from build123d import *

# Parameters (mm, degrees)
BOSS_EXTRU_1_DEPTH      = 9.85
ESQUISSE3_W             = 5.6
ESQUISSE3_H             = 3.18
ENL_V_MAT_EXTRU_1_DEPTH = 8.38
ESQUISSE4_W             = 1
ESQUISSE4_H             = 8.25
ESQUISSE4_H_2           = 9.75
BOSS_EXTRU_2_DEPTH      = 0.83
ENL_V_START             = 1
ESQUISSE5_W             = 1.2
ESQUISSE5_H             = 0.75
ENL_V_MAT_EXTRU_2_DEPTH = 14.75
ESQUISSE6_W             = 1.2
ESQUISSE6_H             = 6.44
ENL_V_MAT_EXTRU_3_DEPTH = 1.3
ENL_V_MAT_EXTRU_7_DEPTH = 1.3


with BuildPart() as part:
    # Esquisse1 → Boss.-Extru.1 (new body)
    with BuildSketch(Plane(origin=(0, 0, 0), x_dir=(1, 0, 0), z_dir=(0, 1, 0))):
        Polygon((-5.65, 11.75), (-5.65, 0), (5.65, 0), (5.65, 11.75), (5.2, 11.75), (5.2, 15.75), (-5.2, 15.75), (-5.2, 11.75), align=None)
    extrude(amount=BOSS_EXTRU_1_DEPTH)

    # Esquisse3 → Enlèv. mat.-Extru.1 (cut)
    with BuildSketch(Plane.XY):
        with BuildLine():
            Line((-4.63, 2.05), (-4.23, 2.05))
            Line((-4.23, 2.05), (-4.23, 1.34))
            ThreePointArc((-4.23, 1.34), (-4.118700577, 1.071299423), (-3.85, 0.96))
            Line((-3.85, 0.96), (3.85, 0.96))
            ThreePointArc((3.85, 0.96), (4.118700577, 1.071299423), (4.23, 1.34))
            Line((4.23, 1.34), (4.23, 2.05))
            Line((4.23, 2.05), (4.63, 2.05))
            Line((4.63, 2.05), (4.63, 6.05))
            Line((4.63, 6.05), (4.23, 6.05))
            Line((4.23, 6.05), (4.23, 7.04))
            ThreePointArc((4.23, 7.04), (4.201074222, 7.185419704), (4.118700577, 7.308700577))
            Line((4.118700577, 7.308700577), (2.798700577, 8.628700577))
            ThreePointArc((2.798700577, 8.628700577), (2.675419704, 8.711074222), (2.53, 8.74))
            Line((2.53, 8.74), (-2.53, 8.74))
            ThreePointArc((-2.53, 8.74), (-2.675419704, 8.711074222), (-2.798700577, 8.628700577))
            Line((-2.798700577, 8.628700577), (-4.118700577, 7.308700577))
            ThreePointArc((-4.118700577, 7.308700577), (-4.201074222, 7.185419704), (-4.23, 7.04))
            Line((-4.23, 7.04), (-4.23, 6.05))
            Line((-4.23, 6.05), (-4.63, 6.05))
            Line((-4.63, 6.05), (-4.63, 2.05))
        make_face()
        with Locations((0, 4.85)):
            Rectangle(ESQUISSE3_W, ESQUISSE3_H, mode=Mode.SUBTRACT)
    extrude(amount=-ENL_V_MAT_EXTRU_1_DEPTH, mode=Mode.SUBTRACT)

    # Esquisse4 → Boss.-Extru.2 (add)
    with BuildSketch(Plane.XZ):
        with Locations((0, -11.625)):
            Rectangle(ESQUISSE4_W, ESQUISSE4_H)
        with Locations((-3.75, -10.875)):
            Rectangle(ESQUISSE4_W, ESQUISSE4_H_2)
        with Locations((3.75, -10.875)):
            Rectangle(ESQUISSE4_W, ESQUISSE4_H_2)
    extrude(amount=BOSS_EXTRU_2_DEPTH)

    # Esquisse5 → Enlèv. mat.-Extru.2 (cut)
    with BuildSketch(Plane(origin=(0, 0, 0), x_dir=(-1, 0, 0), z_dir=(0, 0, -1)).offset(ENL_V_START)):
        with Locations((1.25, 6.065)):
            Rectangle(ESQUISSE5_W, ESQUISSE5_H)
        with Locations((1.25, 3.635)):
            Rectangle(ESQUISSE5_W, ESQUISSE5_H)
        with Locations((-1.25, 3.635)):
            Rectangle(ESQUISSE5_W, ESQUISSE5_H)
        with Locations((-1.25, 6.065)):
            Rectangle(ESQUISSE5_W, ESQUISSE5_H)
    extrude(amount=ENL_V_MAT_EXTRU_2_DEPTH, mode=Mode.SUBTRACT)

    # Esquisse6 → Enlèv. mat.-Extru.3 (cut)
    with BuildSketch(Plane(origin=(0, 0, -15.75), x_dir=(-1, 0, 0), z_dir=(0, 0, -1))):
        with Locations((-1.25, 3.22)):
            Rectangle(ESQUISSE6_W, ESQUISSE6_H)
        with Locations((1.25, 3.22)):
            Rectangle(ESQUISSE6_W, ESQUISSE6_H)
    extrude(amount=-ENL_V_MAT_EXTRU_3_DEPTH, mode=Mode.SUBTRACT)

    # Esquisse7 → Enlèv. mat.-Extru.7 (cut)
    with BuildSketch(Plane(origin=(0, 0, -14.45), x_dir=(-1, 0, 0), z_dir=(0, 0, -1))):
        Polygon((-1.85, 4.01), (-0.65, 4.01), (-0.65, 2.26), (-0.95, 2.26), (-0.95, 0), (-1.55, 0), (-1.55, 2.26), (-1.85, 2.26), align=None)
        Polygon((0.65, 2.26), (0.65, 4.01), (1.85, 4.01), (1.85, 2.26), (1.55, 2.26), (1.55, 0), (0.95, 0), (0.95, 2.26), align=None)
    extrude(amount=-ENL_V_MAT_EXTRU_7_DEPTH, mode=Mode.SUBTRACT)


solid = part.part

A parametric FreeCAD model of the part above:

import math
import FreeCAD as App
import Part
import Sketcher
Q = App.Units.Quantity

doc = App.newDocument("Part")
body = doc.addObject("PartDesign::Body", "Body")

sketch1 = body.newObject("Sketcher::SketchObject", "Sketch")
sketch1.AttachmentSupport = (doc.getObject("XZ_Plane"), [""])
sketch1.MapMode = "FlatFace"
sketch1.addGeometry(Part.LineSegment(App.Vector(-5.65, -11.75, 0), App.Vector(-5.65, 0, 0)), False)
sketch1.addGeometry(Part.LineSegment(App.Vector(-5.65, 0, 0), App.Vector(5.65, 0, 0)), False)
sketch1.addGeometry(Part.LineSegment(App.Vector(5.65, 0, 0), App.Vector(5.65, -11.75, 0)), False)
sketch1.addGeometry(Part.LineSegment(App.Vector(5.65, -11.75, 0), App.Vector(5.2, -11.75, 0)), False)
sketch1.addGeometry(Part.LineSegment(App.Vector(5.2, -11.75, 0), App.Vector(5.2, -15.75, 0)), False)
sketch1.addGeometry(Part.LineSegment(App.Vector(5.2, -15.75, 0), App.Vector(-5.2, -15.75, 0)), False)
sketch1.addGeometry(Part.LineSegment(App.Vector(-5.2, -15.75, 0), App.Vector(-5.2, -11.75, 0)), False)
sketch1.addGeometry(Part.LineSegment(App.Vector(-5.2, -11.75, 0), App.Vector(-5.65, -11.75, 0)), False)
sketch1.addConstraint(Sketcher.Constraint("Coincident", 0, 2, 1, 1))
sketch1.addConstraint(Sketcher.Constraint("Coincident", 1, 2, 2, 1))
sketch1.addConstraint(Sketcher.Constraint("Coincident", 2, 2, 3, 1))
sketch1.addConstraint(Sketcher.Constraint("Coincident", 3, 2, 4, 1))
sketch1.addConstraint(Sketcher.Constraint("Coincident", 4, 2, 5, 1))
sketch1.addConstraint(Sketcher.Constraint("Coincident", 5, 2, 6, 1))
sketch1.addConstraint(Sketcher.Constraint("Coincident", 6, 2, 7, 1))
sketch1.addConstraint(Sketcher.Constraint("Coincident", 7, 2, 0, 1))
sketch1.addConstraint(Sketcher.Constraint("Vertical", 0))
sketch1.addConstraint(Sketcher.Constraint("Horizontal", 1))
sketch1.addConstraint(Sketcher.Constraint("Vertical", 2))
sketch1.addConstraint(Sketcher.Constraint("Horizontal", 3))
sketch1.addConstraint(Sketcher.Constraint("Vertical", 4))
sketch1.addConstraint(Sketcher.Constraint("Horizontal", 5))
sketch1.addConstraint(Sketcher.Constraint("Vertical", 6))
sketch1.addConstraint(Sketcher.Constraint("Horizontal", 7))
sketch1.addConstraint(Sketcher.Constraint("Symmetric", 0, 2, 1, 2, -1, 1))
sketch1.addConstraint(Sketcher.Constraint("Symmetric", 3, 2, 6, 2, -2))
sketch1.addConstraint(Sketcher.Constraint("DistanceY", 4, 2, 4, 1, Q("4 mm")))
sketch1.addConstraint(Sketcher.Constraint("DistanceX", 1, 1, 1, 2, Q("11.3 mm")))
sketch1.addConstraint(Sketcher.Constraint("DistanceX", 5, 2, 5, 1, Q("10.4 mm")))
sketch1.addConstraint(Sketcher.Constraint("DistanceY", 0, 1, 0, 2, Q("11.75 mm")))
pad1 = body.newObject("PartDesign::Pad", "Pad")
pad1.Profile = sketch1
pad1.Length = 9.85
pad1.Reversed = True

sketch2 = body.newObject("Sketcher::SketchObject", "Sketch001")
sketch2.AttachmentSupport = (doc.getObject("XY_Plane"), [""])
sketch2.MapMode = "FlatFace"
sketch2.addGeometry(Part.LineSegment(App.Vector(-4.63, 2.05, 0), App.Vector(-4.23, 2.05, 0)), False)
sketch2.addGeometry(Part.LineSegment(App.Vector(-4.23, 2.05, 0), App.Vector(-4.23, 1.34, 0)), False)
sketch2.addGeometry(Part.ArcOfCircle(Part.Circle(App.Vector(-3.85, 1.34, 0), App.Vector(0, 0, 1), 0.38), math.radians(180), math.radians(270)), False)
sketch2.addGeometry(Part.LineSegment(App.Vector(-3.85, 0.96, 0), App.Vector(3.85, 0.96, 0)), False)
sketch2.addGeometry(Part.ArcOfCircle(Part.Circle(App.Vector(3.85, 1.34, 0), App.Vector(0, 0, 1), 0.38), math.radians(-90), math.radians(0)), False)
sketch2.addGeometry(Part.LineSegment(App.Vector(4.23, 1.34, 0), App.Vector(4.23, 2.05, 0)), False)
sketch2.addGeometry(Part.LineSegment(App.Vector(4.23, 2.05, 0), App.Vector(4.63, 2.05, 0)), False)
sketch2.addGeometry(Part.LineSegment(App.Vector(4.63, 2.05, 0), App.Vector(4.63, 6.05, 0)), False)
sketch2.addGeometry(Part.LineSegment(App.Vector(4.63, 6.05, 0), App.Vector(4.23, 6.05, 0)), False)
sketch2.addGeometry(Part.LineSegment(App.Vector(4.23, 6.05, 0), App.Vector(4.23, 7.04, 0)), False)
sketch2.addGeometry(Part.ArcOfCircle(Part.Circle(App.Vector(3.85, 7.04, 0), App.Vector(0, 0, 1), 0.38), math.radians(0), math.radians(45)), False)
sketch2.addGeometry(Part.LineSegment(App.Vector(4.12, 7.31, 0), App.Vector(2.8, 8.63, 0)), False)
sketch2.addGeometry(Part.ArcOfCircle(Part.Circle(App.Vector(2.53, 8.36, 0), App.Vector(0, 0, 1), 0.38), math.radians(45), math.radians(90)), False)
sketch2.addGeometry(Part.LineSegment(App.Vector(2.53, 8.74, 0), App.Vector(-2.53, 8.74, 0)), False)
sketch2.addGeometry(Part.ArcOfCircle(Part.Circle(App.Vector(-2.53, 8.36, 0), App.Vector(0, 0, 1), 0.38), math.radians(90), math.radians(135)), False)
sketch2.addGeometry(Part.LineSegment(App.Vector(-2.8, 8.63, 0), App.Vector(-4.12, 7.31, 0)), False)
sketch2.addGeometry(Part.ArcOfCircle(Part.Circle(App.Vector(-3.85, 7.04, 0), App.Vector(0, 0, 1), 0.38), math.radians(135), math.radians(180)), False)
sketch2.addGeometry(Part.LineSegment(App.Vector(-4.23, 7.04, 0), App.Vector(-4.23, 6.05, 0)), False)
sketch2.addGeometry(Part.LineSegment(App.Vector(-4.23, 6.05, 0), App.Vector(-4.63, 6.05, 0)), False)
sketch2.addGeometry(Part.LineSegment(App.Vector(-4.63, 6.05, 0), App.Vector(-4.63, 2.05, 0)), False)
sketch2.addGeometry(Part.LineSegment(App.Vector(2.8, 3.26, 0), App.Vector(-2.8, 3.26, 0)), False)
sketch2.addGeometry(Part.LineSegment(App.Vector(-2.8, 3.26, 0), App.Vector(-2.8, 6.44, 0)), False)
sketch2.addGeometry(Part.LineSegment(App.Vector(-2.8, 6.44, 0), App.Vector(2.8, 6.44, 0)), False)
sketch2.addGeometry(Part.LineSegment(App.Vector(2.8, 6.44, 0), App.Vector(2.8, 3.26, 0)), False)
sketch2.addConstraint(Sketcher.Constraint("Coincident", 0, 2, 1, 1))
sketch2.addConstraint(Sketcher.Constraint("Tangent", 1, 2, 2, 1))
sketch2.addConstraint(Sketcher.Constraint("Tangent", 2, 2, 3, 1))
sketch2.addConstraint(Sketcher.Constraint("Tangent", 3, 2, 4, 1))
sketch2.addConstraint(Sketcher.Constraint("Tangent", 4, 2, 5, 1))
sketch2.addConstraint(Sketcher.Constraint("Coincident", 5, 2, 6, 1))
sketch2.addConstraint(Sketcher.Constraint("Coincident", 6, 2, 7, 1))
sketch2.addConstraint(Sketcher.Constraint("Coincident", 7, 2, 8, 1))
sketch2.addConstraint(Sketcher.Constraint("Coincident", 8, 2, 9, 1))
sketch2.addConstraint(Sketcher.Constraint("Tangent", 9, 2, 10, 1))
sketch2.addConstraint(Sketcher.Constraint("Tangent", 10, 2, 11, 1))
sketch2.addConstraint(Sketcher.Constraint("Tangent", 11, 2, 12, 1))
sketch2.addConstraint(Sketcher.Constraint("Tangent", 12, 2, 13, 1))
sketch2.addConstraint(Sketcher.Constraint("Tangent", 13, 2, 14, 1))
sketch2.addConstraint(Sketcher.Constraint("Tangent", 14, 2, 15, 1))
sketch2.addConstraint(Sketcher.Constraint("Tangent", 15, 2, 16, 1))
sketch2.addConstraint(Sketcher.Constraint("Tangent", 16, 2, 17, 1))
sketch2.addConstraint(Sketcher.Constraint("Coincident", 17, 2, 18, 1))
sketch2.addConstraint(Sketcher.Constraint("Coincident", 18, 2, 19, 1))
sketch2.addConstraint(Sketcher.Constraint("Coincident", 19, 2, 0, 1))
sketch2.addConstraint(Sketcher.Constraint("Coincident", 20, 2, 21, 1))
sketch2.addConstraint(Sketcher.Constraint("Coincident", 21, 2, 22, 1))
sketch2.addConstraint(Sketcher.Constraint("Coincident", 22, 2, 23, 1))
sketch2.addConstraint(Sketcher.Constraint("Coincident", 23, 2, 20, 1))
sketch2.addConstraint(Sketcher.Constraint("Horizontal", 0))
sketch2.addConstraint(Sketcher.Constraint("Vertical", 1))
sketch2.addConstraint(Sketcher.Constraint("Horizontal", 3))
sketch2.addConstraint(Sketcher.Constraint("Vertical", 5))
sketch2.addConstraint(Sketcher.Constraint("Horizontal", 6))
sketch2.addConstraint(Sketcher.Constraint("Vertical", 7))
sketch2.addConstraint(Sketcher.Constraint("Horizontal", 8))
sketch2.addConstraint(Sketcher.Constraint("Vertical", 9))
sketch2.addConstraint(Sketcher.Constraint("Horizontal", 13))
sketch2.addConstraint(Sketcher.Constraint("Vertical", 17))
sketch2.addConstraint(Sketcher.Constraint("Horizontal", 18))
sketch2.addConstraint(Sketcher.Constraint("Vertical", 19))
sketch2.addConstraint(Sketcher.Constraint("Horizontal", 20))
sketch2.addConstraint(Sketcher.Constraint("Vertical", 21))
sketch2.addConstraint(Sketcher.Constraint("Horizontal", 22))
sketch2.addConstraint(Sketcher.Constraint("Vertical", 23))
sketch2.addConstraint(Sketcher.Constraint("Equal", 2, 4))
sketch2.addConstraint(Sketcher.Constraint("Equal", 4, 10))
sketch2.addConstraint(Sketcher.Constraint("Equal", 10, 12))
sketch2.addConstraint(Sketcher.Constraint("Equal", 12, 14))
sketch2.addConstraint(Sketcher.Constraint("Equal", 14, 16))
sketch2.addConstraint(Sketcher.Constraint("Symmetric", 10, 3, 16, 3, -2))
sketch2.addConstraint(Sketcher.Constraint("Symmetric", 0, 2, 5, 2, -2))
sketch2.addConstraint(Sketcher.Constraint("Symmetric", 7, 2, 18, 2, -2))
sketch2.addConstraint(Sketcher.Constraint("Perpendicular", 11, 15))
sketch2.addConstraint(Sketcher.Constraint("Horizontal", 11, 2, 14, 2))
sketch2.addConstraint(Sketcher.Constraint("Vertical", 4, 3, 10, 3))
sketch2.addConstraint(Sketcher.Constraint("DistanceY", 7, 1, 7, 2, Q("4 mm")))
sketch2.addConstraint(Sketcher.Constraint("Radius", 2, Q("0.38 mm")))
sketch2.addConstraint(Sketcher.Constraint("DistanceX", 0, 1, 0, 2, Q("0.4 mm")))
sketch2.addConstraint(Sketcher.Constraint("DistanceX", 3, 1, 3, 2, Q("7.7 mm")))
sketch2.addConstraint(Sketcher.Constraint("DistanceX", 20, 2, 20, 1, Q("5.6 mm")))
sketch2.addConstraint(Sketcher.Constraint("DistanceX", 13, 2, 13, 1, Q("5.06 mm")))
sketch2.addConstraint(Sketcher.Constraint("DistanceY", 1, 2, 1, 1, Q("0.71 mm")))
sketch2.addConstraint(Sketcher.Constraint("DistanceY", 9, 1, 9, 2, Q("0.99 mm")))
sketch2.addConstraint(Sketcher.Constraint("DistanceY", 21, 1, 21, 2, Q("3.18 mm")))
sketch2.addConstraint(Sketcher.Constraint("DistanceX", 20, 2, -1, 1, Q("2.8 mm")))
sketch2.addConstraint(Sketcher.Constraint("DistanceY", 2, 2, 20, 2, Q("2.3 mm")))
sketch2.addConstraint(Sketcher.Constraint("DistanceY", -1, 1, 2, 3, Q("1.34 mm")))
pocket1 = body.newObject("PartDesign::Pocket", "Pocket")
pocket1.Profile = sketch2
pocket1.Length = 8.38

sketch3 = body.newObject("Sketcher::SketchObject", "Sketch002")
sketch3.AttachmentSupport = (doc.getObject("XZ_Plane"), [""])
sketch3.MapMode = "FlatFace"
sketch3.addGeometry(Part.LineSegment(App.Vector(-0.5, -7.5, 0), App.Vector(-0.5, -15.8, 0)), False)
sketch3.addGeometry(Part.LineSegment(App.Vector(-0.5, -15.8, 0), App.Vector(0.5, -15.8, 0)), False)
sketch3.addGeometry(Part.LineSegment(App.Vector(0.5, -15.8, 0), App.Vector(0.5, -7.5, 0)), False)
sketch3.addGeometry(Part.LineSegment(App.Vector(0.5, -7.5, 0), App.Vector(-0.5, -7.5, 0)), False)
sketch3.addGeometry(Part.LineSegment(App.Vector(-4.2, -6, 0), App.Vector(-4.2, -15.8, 0)), False)
sketch3.addGeometry(Part.LineSegment(App.Vector(-4.2, -15.8, 0), App.Vector(-3.2, -15.8, 0)), False)
sketch3.addGeometry(Part.LineSegment(App.Vector(-3.2, -15.8, 0), App.Vector(-3.2, -6, 0)), False)
sketch3.addGeometry(Part.LineSegment(App.Vector(-3.2, -6, 0), App.Vector(-4.2, -6, 0)), False)
sketch3.addGeometry(Part.LineSegment(App.Vector(3.2, -6, 0), App.Vector(3.2, -15.8, 0)), False)
sketch3.addGeometry(Part.LineSegment(App.Vector(3.2, -15.8, 0), App.Vector(4.2, -15.8, 0)), False)
sketch3.addGeometry(Part.LineSegment(App.Vector(4.2, -15.8, 0), App.Vector(4.2, -6, 0)), False)
sketch3.addGeometry(Part.LineSegment(App.Vector(4.2, -6, 0), App.Vector(3.2, -6, 0)), False)
sketch3.addConstraint(Sketcher.Constraint("Coincident", 0, 2, 1, 1))
sketch3.addConstraint(Sketcher.Constraint("Coincident", 1, 2, 2, 1))
sketch3.addConstraint(Sketcher.Constraint("Coincident", 2, 2, 3, 1))
sketch3.addConstraint(Sketcher.Constraint("Coincident", 3, 2, 0, 1))
sketch3.addConstraint(Sketcher.Constraint("Coincident", 4, 2, 5, 1))
sketch3.addConstraint(Sketcher.Constraint("Coincident", 5, 2, 6, 1))
sketch3.addConstraint(Sketcher.Constraint("Coincident", 6, 2, 7, 1))
sketch3.addConstraint(Sketcher.Constraint("Coincident", 7, 2, 4, 1))
sketch3.addConstraint(Sketcher.Constraint("Coincident", 8, 2, 9, 1))
sketch3.addConstraint(Sketcher.Constraint("Coincident", 9, 2, 10, 1))
sketch3.addConstraint(Sketcher.Constraint("Coincident", 10, 2, 11, 1))
sketch3.addConstraint(Sketcher.Constraint("Coincident", 11, 2, 8, 1))
sketch3.addConstraint(Sketcher.Constraint("Vertical", 0))
sketch3.addConstraint(Sketcher.Constraint("Horizontal", 1))
sketch3.addConstraint(Sketcher.Constraint("Vertical", 2))
sketch3.addConstraint(Sketcher.Constraint("Horizontal", 3))
sketch3.addConstraint(Sketcher.Constraint("Vertical", 4))
sketch3.addConstraint(Sketcher.Constraint("Horizontal", 5))
sketch3.addConstraint(Sketcher.Constraint("Vertical", 6))
sketch3.addConstraint(Sketcher.Constraint("Horizontal", 7))
sketch3.addConstraint(Sketcher.Constraint("Vertical", 8))
sketch3.addConstraint(Sketcher.Constraint("Horizontal", 9))
sketch3.addConstraint(Sketcher.Constraint("Vertical", 10))
sketch3.addConstraint(Sketcher.Constraint("Horizontal", 11))
sketch3.addConstraint(Sketcher.Constraint("Symmetric", 5, 2, 8, 2, -2))
sketch3.addConstraint(Sketcher.Constraint("Symmetric", 7, 2, 10, 2, -2))
sketch3.addConstraint(Sketcher.Constraint("Horizontal", 1, 2, 4, 2))
sketch3.addConstraint(Sketcher.Constraint("Equal", 3, 5))
sketch3.addConstraint(Sketcher.Constraint("DistanceX", 1, 1, 1, 2, Q("1 mm")))
sketch3.addConstraint(Sketcher.Constraint("DistanceY", 6, 2, -1, 1, Q("6 mm")))
sketch3.addConstraint(Sketcher.Constraint("DistanceY", 0, 2, 0, 1, Q("8.25 mm")))
sketch3.addConstraint(Sketcher.Constraint("DistanceY", 4, 2, 4, 1, Q("9.75 mm")))
sketch3.addConstraint(Sketcher.Constraint("DistanceX", 0, 2, -1, 1, Q("0.5 mm")))
sketch3.addConstraint(Sketcher.Constraint("DistanceX", 5, 2, 8, 2, Q("6.5 mm")))
pad2 = body.newObject("PartDesign::Pad", "Pad001")
pad2.Profile = sketch3
pad2.Length = 0.83

sketch4 = body.newObject("Sketcher::SketchObject", "Sketch003")
sketch4.AttachmentSupport = (doc.getObject("XY_Plane"), [""])
sketch4.MapMode = "FlatFace"
sketch4.AttachmentOffset = App.Placement(App.Vector(0, 0, -1), App.Rotation())
sketch4.addGeometry(Part.LineSegment(App.Vector(-0.7, 6.4, 0), App.Vector(-0.7, 5.7, 0)), False)
sketch4.addGeometry(Part.LineSegment(App.Vector(-0.7, 5.7, 0), App.Vector(-1.9, 5.7, 0)), False)
sketch4.addGeometry(Part.LineSegment(App.Vector(-1.9, 5.7, 0), App.Vector(-1.9, 6.4, 0)), False)
sketch4.addGeometry(Part.LineSegment(App.Vector(-1.9, 6.4, 0), App.Vector(-0.7, 6.4, 0)), False)
sketch4.addGeometry(Part.LineSegment(App.Vector(-0.7, 4, 0), App.Vector(-0.7, 3.3, 0)), False)
sketch4.addGeometry(Part.LineSegment(App.Vector(-0.7, 3.3, 0), App.Vector(-1.9, 3.3, 0)), False)
sketch4.addGeometry(Part.LineSegment(App.Vector(-1.9, 3.3, 0), App.Vector(-1.9, 4, 0)), False)
sketch4.addGeometry(Part.LineSegment(App.Vector(-1.9, 4, 0), App.Vector(-0.7, 4, 0)), False)
sketch4.addGeometry(Part.LineSegment(App.Vector(1.9, 4, 0), App.Vector(1.9, 3.3, 0)), False)
sketch4.addGeometry(Part.LineSegment(App.Vector(1.9, 3.3, 0), App.Vector(0.7, 3.3, 0)), False)
sketch4.addGeometry(Part.LineSegment(App.Vector(0.7, 3.3, 0), App.Vector(0.7, 4, 0)), False)
sketch4.addGeometry(Part.LineSegment(App.Vector(0.7, 4, 0), App.Vector(1.9, 4, 0)), False)
sketch4.addGeometry(Part.LineSegment(App.Vector(1.9, 6.4, 0), App.Vector(1.9, 5.7, 0)), False)
sketch4.addGeometry(Part.LineSegment(App.Vector(1.9, 5.7, 0), App.Vector(0.7, 5.7, 0)), False)
sketch4.addGeometry(Part.LineSegment(App.Vector(0.7, 5.7, 0), App.Vector(0.7, 6.4, 0)), False)
sketch4.addGeometry(Part.LineSegment(App.Vector(0.7, 6.4, 0), App.Vector(1.9, 6.4, 0)), False)
sketch4.addConstraint(Sketcher.Constraint("Coincident", 0, 2, 1, 1))
sketch4.addConstraint(Sketcher.Constraint("Coincident", 1, 2, 2, 1))
sketch4.addConstraint(Sketcher.Constraint("Coincident", 2, 2, 3, 1))
sketch4.addConstraint(Sketcher.Constraint("Coincident", 3, 2, 0, 1))
sketch4.addConstraint(Sketcher.Constraint("Coincident", 4, 2, 5, 1))
sketch4.addConstraint(Sketcher.Constraint("Coincident", 5, 2, 6, 1))
sketch4.addConstraint(Sketcher.Constraint("Coincident", 6, 2, 7, 1))
sketch4.addConstraint(Sketcher.Constraint("Coincident", 7, 2, 4, 1))
sketch4.addConstraint(Sketcher.Constraint("Coincident", 8, 2, 9, 1))
sketch4.addConstraint(Sketcher.Constraint("Coincident", 9, 2, 10, 1))
sketch4.addConstraint(Sketcher.Constraint("Coincident", 10, 2, 11, 1))
sketch4.addConstraint(Sketcher.Constraint("Coincident", 11, 2, 8, 1))
sketch4.addConstraint(Sketcher.Constraint("Coincident", 12, 2, 13, 1))
sketch4.addConstraint(Sketcher.Constraint("Coincident", 13, 2, 14, 1))
sketch4.addConstraint(Sketcher.Constraint("Coincident", 14, 2, 15, 1))
sketch4.addConstraint(Sketcher.Constraint("Coincident", 15, 2, 12, 1))
sketch4.addConstraint(Sketcher.Constraint("Vertical", 0))
sketch4.addConstraint(Sketcher.Constraint("Horizontal", 1))
sketch4.addConstraint(Sketcher.Constraint("Vertical", 2))
sketch4.addConstraint(Sketcher.Constraint("Horizontal", 3))
sketch4.addConstraint(Sketcher.Constraint("Vertical", 4))
sketch4.addConstraint(Sketcher.Constraint("Horizontal", 5))
sketch4.addConstraint(Sketcher.Constraint("Vertical", 6))
sketch4.addConstraint(Sketcher.Constraint("Horizontal", 7))
sketch4.addConstraint(Sketcher.Constraint("Vertical", 8))
sketch4.addConstraint(Sketcher.Constraint("Horizontal", 9))
sketch4.addConstraint(Sketcher.Constraint("Vertical", 10))
sketch4.addConstraint(Sketcher.Constraint("Horizontal", 11))
sketch4.addConstraint(Sketcher.Constraint("Vertical", 12))
sketch4.addConstraint(Sketcher.Constraint("Horizontal", 13))
sketch4.addConstraint(Sketcher.Constraint("Vertical", 14))
sketch4.addConstraint(Sketcher.Constraint("Horizontal", 15))
sketch4.addConstraint(Sketcher.Constraint("Symmetric", 5, 2, 8, 2, -2))
sketch4.addConstraint(Sketcher.Constraint("Symmetric", 7, 2, 10, 2, -2))
sketch4.addConstraint(Sketcher.Constraint("Symmetric", 1, 2, 12, 2, -2))
sketch4.addConstraint(Sketcher.Constraint("Symmetric", 3, 2, 14, 2, -2))
sketch4.addConstraint(Sketcher.Constraint("Vertical", 3, 2, 4, 2))
sketch4.addConstraint(Sketcher.Constraint("Vertical", 2, 2, 5, 2))
sketch4.addConstraint(Sketcher.Constraint("Equal", 2, 4))
sketch4.addConstraint(Sketcher.Constraint("DistanceX", 1, 2, 1, 1, Q("1.2 mm")))
sketch4.addConstraint(Sketcher.Constraint("DistanceY", 0, 2, 0, 1, Q("0.75 mm")))
sketch4.addConstraint(Sketcher.Constraint("DistanceX", 4, 2, 8, 2, Q("2.5 mm")))
sketch4.addConstraint(Sketcher.Constraint("DistanceY", -1, 1, 0, 2, Q("5.69 mm")))
sketch4.addConstraint(Sketcher.Constraint("DistanceY", -1, 1, 4, 2, Q("3.26 mm")))
pocket2 = body.newObject("PartDesign::Pocket", "Pocket001")
pocket2.Profile = sketch4
pocket2.Length = 14.75

sketch5 = body.newObject("Sketcher::SketchObject", "Sketch004")
sketch5.AttachmentSupport = (doc.getObject("XY_Plane"), [""])
sketch5.MapMode = "FlatFace"
sketch5.AttachmentOffset = App.Placement(App.Vector(0, 0, -15.75), App.Rotation())
sketch5.addGeometry(Part.LineSegment(App.Vector(1.9, 6.4, 0), App.Vector(1.9, 0, 0)), False)
sketch5.addGeometry(Part.LineSegment(App.Vector(1.9, 0, 0), App.Vector(0.7, 0, 0)), False)
sketch5.addGeometry(Part.LineSegment(App.Vector(0.7, 0, 0), App.Vector(0.7, 6.4, 0)), False)
sketch5.addGeometry(Part.LineSegment(App.Vector(0.7, 6.4, 0), App.Vector(1.9, 6.4, 0)), False)
sketch5.addGeometry(Part.LineSegment(App.Vector(-0.7, 6.4, 0), App.Vector(-0.7, 0, 0)), False)
sketch5.addGeometry(Part.LineSegment(App.Vector(-0.7, 0, 0), App.Vector(-1.9, 0, 0)), False)
sketch5.addGeometry(Part.LineSegment(App.Vector(-1.9, 0, 0), App.Vector(-1.9, 6.4, 0)), False)
sketch5.addGeometry(Part.LineSegment(App.Vector(-1.9, 6.4, 0), App.Vector(-0.7, 6.4, 0)), False)
sketch5.addConstraint(Sketcher.Constraint("Coincident", 0, 2, 1, 1))
sketch5.addConstraint(Sketcher.Constraint("Coincident", 1, 2, 2, 1))
sketch5.addConstraint(Sketcher.Constraint("Coincident", 2, 2, 3, 1))
sketch5.addConstraint(Sketcher.Constraint("Coincident", 3, 2, 0, 1))
sketch5.addConstraint(Sketcher.Constraint("Coincident", 4, 2, 5, 1))
sketch5.addConstraint(Sketcher.Constraint("Coincident", 5, 2, 6, 1))
sketch5.addConstraint(Sketcher.Constraint("Coincident", 6, 2, 7, 1))
sketch5.addConstraint(Sketcher.Constraint("Coincident", 7, 2, 4, 1))
sketch5.addConstraint(Sketcher.Constraint("Vertical", 0))
sketch5.addConstraint(Sketcher.Constraint("Horizontal", 1))
sketch5.addConstraint(Sketcher.Constraint("Vertical", 2))
sketch5.addConstraint(Sketcher.Constraint("Horizontal", 3))
sketch5.addConstraint(Sketcher.Constraint("Vertical", 4))
sketch5.addConstraint(Sketcher.Constraint("Horizontal", 5))
sketch5.addConstraint(Sketcher.Constraint("Vertical", 6))
sketch5.addConstraint(Sketcher.Constraint("Horizontal", 7))
sketch5.addConstraint(Sketcher.Constraint("Symmetric", 1, 2, 4, 2, -1, 1))
sketch5.addConstraint(Sketcher.Constraint("Symmetric", 0, 2, 5, 2, -2))
sketch5.addConstraint(Sketcher.Constraint("Horizontal", 3, 2, 6, 2))
sketch5.addConstraint(Sketcher.Constraint("DistanceX", 1, 2, 1, 1, Q("1.2 mm")))
sketch5.addConstraint(Sketcher.Constraint("DistanceY", 0, 2, 0, 1, Q("6.44 mm")))
sketch5.addConstraint(Sketcher.Constraint("DistanceX", 4, 2, 1, 2, Q("1.3 mm")))
pocket3 = body.newObject("PartDesign::Pocket", "Pocket002")
pocket3.Profile = sketch5
pocket3.Length = 1.3
pocket3.Reversed = True

sketch6 = body.newObject("Sketcher::SketchObject", "Sketch005")
sketch6.AttachmentSupport = (doc.getObject("XY_Plane"), [""])
sketch6.MapMode = "FlatFace"
sketch6.AttachmentOffset = App.Placement(App.Vector(0, 0, -14.45), App.Rotation())
sketch6.addGeometry(Part.LineSegment(App.Vector(0.65, 4.01, 0), App.Vector(1.85, 4.01, 0)), False)
sketch6.addGeometry(Part.LineSegment(App.Vector(1.85, 4.01, 0), App.Vector(1.85, 2.26, 0)), False)
sketch6.addGeometry(Part.LineSegment(App.Vector(1.85, 2.26, 0), App.Vector(1.55, 2.26, 0)), False)
sketch6.addGeometry(Part.LineSegment(App.Vector(1.55, 2.26, 0), App.Vector(1.55, 0, 0)), False)
sketch6.addGeometry(Part.LineSegment(App.Vector(1.55, 0, 0), App.Vector(0.95, 0, 0)), False)
sketch6.addGeometry(Part.LineSegment(App.Vector(0.95, 0, 0), App.Vector(0.95, 2.26, 0)), False)
sketch6.addGeometry(Part.LineSegment(App.Vector(0.95, 2.26, 0), App.Vector(0.65, 2.26, 0)), False)
sketch6.addGeometry(Part.LineSegment(App.Vector(0.65, 2.26, 0), App.Vector(0.65, 4.01, 0)), False)
sketch6.addGeometry(Part.LineSegment(App.Vector(-0.65, 4.01, 0), App.Vector(-0.65, 2.26, 0)), False)
sketch6.addGeometry(Part.LineSegment(App.Vector(-0.65, 2.26, 0), App.Vector(-0.95, 2.26, 0)), False)
sketch6.addGeometry(Part.LineSegment(App.Vector(-0.95, 2.26, 0), App.Vector(-0.95, 0, 0)), False)
sketch6.addGeometry(Part.LineSegment(App.Vector(-0.95, 0, 0), App.Vector(-1.55, 0, 0)), False)
sketch6.addGeometry(Part.LineSegment(App.Vector(-1.55, 0, 0), App.Vector(-1.55, 2.26, 0)), False)
sketch6.addGeometry(Part.LineSegment(App.Vector(-1.55, 2.26, 0), App.Vector(-1.85, 2.26, 0)), False)
sketch6.addGeometry(Part.LineSegment(App.Vector(-1.85, 2.26, 0), App.Vector(-1.85, 4.01, 0)), False)
sketch6.addGeometry(Part.LineSegment(App.Vector(-1.85, 4.01, 0), App.Vector(-0.65, 4.01, 0)), False)
sketch6.addConstraint(Sketcher.Constraint("Coincident", 0, 2, 1, 1))
sketch6.addConstraint(Sketcher.Constraint("Coincident", 1, 2, 2, 1))
sketch6.addConstraint(Sketcher.Constraint("Coincident", 2, 2, 3, 1))
sketch6.addConstraint(Sketcher.Constraint("Coincident", 3, 2, 4, 1))
sketch6.addConstraint(Sketcher.Constraint("Coincident", 4, 2, 5, 1))
sketch6.addConstraint(Sketcher.Constraint("Coincident", 5, 2, 6, 1))
sketch6.addConstraint(Sketcher.Constraint("Coincident", 6, 2, 7, 1))
sketch6.addConstraint(Sketcher.Constraint("Coincident", 7, 2, 0, 1))
sketch6.addConstraint(Sketcher.Constraint("Coincident", 8, 2, 9, 1))
sketch6.addConstraint(Sketcher.Constraint("Coincident", 9, 2, 10, 1))
sketch6.addConstraint(Sketcher.Constraint("Coincident", 10, 2, 11, 1))
sketch6.addConstraint(Sketcher.Constraint("Coincident", 11, 2, 12, 1))
sketch6.addConstraint(Sketcher.Constraint("Coincident", 12, 2, 13, 1))
sketch6.addConstraint(Sketcher.Constraint("Coincident", 13, 2, 14, 1))
sketch6.addConstraint(Sketcher.Constraint("Coincident", 14, 2, 15, 1))
sketch6.addConstraint(Sketcher.Constraint("Coincident", 15, 2, 8, 1))
sketch6.addConstraint(Sketcher.Constraint("Horizontal", 0))
sketch6.addConstraint(Sketcher.Constraint("Vertical", 1))
sketch6.addConstraint(Sketcher.Constraint("Horizontal", 2))
sketch6.addConstraint(Sketcher.Constraint("Vertical", 3))
sketch6.addConstraint(Sketcher.Constraint("Horizontal", 4))
sketch6.addConstraint(Sketcher.Constraint("Vertical", 5))
sketch6.addConstraint(Sketcher.Constraint("Horizontal", 6))
sketch6.addConstraint(Sketcher.Constraint("Vertical", 7))
sketch6.addConstraint(Sketcher.Constraint("Vertical", 8))
sketch6.addConstraint(Sketcher.Constraint("Horizontal", 9))
sketch6.addConstraint(Sketcher.Constraint("Vertical", 10))
sketch6.addConstraint(Sketcher.Constraint("Horizontal", 11))
sketch6.addConstraint(Sketcher.Constraint("Vertical", 12))
sketch6.addConstraint(Sketcher.Constraint("Horizontal", 13))
sketch6.addConstraint(Sketcher.Constraint("Vertical", 14))
sketch6.addConstraint(Sketcher.Constraint("Horizontal", 15))
sketch6.addConstraint(Sketcher.Constraint("Symmetric", 4, 2, 10, 2, -1, 1))
sketch6.addConstraint(Sketcher.Constraint("Symmetric", 6, 2, 8, 2, -2))
sketch6.addConstraint(Sketcher.Constraint("Symmetric", 3, 2, 11, 2, -2))
sketch6.addConstraint(Sketcher.Constraint("Symmetric", 1, 2, 13, 2, -2))
sketch6.addConstraint(Sketcher.Constraint("Horizontal", 2, 2, 5, 2))
sketch6.addConstraint(Sketcher.Constraint("Horizontal", 7, 2, 14, 2))
sketch6.addConstraint(Sketcher.Constraint("Equal", 2, 6))
sketch6.addConstraint(Sketcher.Constraint("DistanceX", 0, 1, 0, 2, Q("1.2 mm")))
sketch6.addConstraint(Sketcher.Constraint("DistanceX", 2, 2, 2, 1, Q("0.3 mm")))
sketch6.addConstraint(Sketcher.Constraint("DistanceY", 1, 2, 1, 1, Q("1.75 mm")))
sketch6.addConstraint(Sketcher.Constraint("DistanceY", 3, 2, 3, 1, Q("2.26 mm")))
sketch6.addConstraint(Sketcher.Constraint("DistanceX", 8, 2, 6, 2, Q("1.3 mm")))
pocket4 = body.newObject("PartDesign::Pocket", "Pocket003")
pocket4.Profile = sketch6
pocket4.Length = 1.3
pocket4.Reversed = True

doc.recompute()
